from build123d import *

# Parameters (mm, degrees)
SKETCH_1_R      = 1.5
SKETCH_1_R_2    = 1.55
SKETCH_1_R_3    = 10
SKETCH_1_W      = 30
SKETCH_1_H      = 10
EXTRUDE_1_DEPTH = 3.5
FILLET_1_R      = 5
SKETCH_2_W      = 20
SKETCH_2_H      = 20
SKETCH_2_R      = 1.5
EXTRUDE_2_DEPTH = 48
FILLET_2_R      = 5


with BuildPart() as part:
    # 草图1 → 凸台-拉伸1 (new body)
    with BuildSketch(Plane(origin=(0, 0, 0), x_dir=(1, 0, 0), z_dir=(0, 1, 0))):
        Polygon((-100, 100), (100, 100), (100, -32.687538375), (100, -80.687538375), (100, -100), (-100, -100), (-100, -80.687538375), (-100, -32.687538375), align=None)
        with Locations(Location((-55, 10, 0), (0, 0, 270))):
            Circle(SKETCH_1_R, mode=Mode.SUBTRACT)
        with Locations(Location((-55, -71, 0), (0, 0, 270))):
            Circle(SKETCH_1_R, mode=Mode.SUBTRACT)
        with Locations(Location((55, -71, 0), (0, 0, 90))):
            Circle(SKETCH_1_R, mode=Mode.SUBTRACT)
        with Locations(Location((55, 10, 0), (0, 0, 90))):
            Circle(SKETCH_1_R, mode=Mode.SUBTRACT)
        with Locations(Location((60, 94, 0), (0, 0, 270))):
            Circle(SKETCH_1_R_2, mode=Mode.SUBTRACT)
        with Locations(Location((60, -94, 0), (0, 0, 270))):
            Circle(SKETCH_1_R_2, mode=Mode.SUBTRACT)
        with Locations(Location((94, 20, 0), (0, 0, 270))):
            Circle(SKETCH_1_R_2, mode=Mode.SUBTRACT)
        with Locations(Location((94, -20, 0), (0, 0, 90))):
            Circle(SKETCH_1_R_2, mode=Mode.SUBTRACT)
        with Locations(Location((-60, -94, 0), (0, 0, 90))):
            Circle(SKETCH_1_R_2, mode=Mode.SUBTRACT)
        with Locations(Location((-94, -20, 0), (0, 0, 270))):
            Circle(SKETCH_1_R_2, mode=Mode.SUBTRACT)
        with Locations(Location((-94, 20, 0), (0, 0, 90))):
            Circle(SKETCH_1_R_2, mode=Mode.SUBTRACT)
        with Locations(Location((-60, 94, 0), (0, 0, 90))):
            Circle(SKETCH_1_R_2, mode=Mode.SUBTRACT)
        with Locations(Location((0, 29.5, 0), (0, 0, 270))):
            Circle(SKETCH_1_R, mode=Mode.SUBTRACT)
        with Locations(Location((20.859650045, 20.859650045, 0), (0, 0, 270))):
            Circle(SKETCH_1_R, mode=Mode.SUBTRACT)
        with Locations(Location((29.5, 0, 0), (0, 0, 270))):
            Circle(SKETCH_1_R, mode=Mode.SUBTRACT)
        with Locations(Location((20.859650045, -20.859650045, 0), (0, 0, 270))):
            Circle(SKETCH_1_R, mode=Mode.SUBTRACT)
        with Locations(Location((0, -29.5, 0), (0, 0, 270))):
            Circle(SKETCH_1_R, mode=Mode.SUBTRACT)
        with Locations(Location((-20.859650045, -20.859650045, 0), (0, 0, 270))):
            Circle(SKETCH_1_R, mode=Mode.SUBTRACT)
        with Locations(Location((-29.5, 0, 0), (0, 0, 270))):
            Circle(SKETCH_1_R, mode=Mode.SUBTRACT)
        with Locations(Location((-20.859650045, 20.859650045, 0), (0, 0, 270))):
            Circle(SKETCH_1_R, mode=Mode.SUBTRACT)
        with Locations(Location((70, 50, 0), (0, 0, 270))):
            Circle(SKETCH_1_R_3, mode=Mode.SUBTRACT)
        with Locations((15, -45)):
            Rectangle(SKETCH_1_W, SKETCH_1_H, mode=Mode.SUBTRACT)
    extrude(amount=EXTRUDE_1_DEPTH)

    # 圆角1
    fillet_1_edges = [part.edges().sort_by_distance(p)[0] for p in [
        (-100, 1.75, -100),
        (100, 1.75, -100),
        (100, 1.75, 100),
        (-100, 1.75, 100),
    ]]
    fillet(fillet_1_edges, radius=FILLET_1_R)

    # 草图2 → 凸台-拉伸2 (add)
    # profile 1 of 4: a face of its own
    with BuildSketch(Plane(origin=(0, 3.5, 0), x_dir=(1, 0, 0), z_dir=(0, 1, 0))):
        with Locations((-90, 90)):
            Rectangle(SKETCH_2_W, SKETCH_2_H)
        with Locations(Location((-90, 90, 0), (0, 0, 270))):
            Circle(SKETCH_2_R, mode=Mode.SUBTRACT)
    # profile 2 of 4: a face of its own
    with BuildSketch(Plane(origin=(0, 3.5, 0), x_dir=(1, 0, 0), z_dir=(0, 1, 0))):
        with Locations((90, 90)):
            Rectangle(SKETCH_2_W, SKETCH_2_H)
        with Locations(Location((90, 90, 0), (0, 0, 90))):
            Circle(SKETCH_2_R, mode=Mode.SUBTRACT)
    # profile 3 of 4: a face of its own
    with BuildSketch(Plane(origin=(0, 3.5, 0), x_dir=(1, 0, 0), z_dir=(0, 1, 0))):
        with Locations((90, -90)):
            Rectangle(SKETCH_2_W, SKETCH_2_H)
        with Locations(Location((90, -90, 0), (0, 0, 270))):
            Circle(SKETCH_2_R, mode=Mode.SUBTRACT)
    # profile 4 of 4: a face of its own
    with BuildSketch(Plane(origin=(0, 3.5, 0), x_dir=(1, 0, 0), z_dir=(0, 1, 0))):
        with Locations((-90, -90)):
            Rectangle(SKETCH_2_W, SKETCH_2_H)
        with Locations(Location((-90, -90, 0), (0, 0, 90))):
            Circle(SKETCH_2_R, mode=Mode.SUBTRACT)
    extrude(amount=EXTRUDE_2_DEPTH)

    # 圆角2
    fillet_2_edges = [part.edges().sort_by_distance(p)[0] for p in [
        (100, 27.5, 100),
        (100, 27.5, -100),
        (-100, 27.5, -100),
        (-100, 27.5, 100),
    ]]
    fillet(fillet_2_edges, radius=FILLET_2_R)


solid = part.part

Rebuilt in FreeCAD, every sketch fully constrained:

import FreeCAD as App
import Part
import Sketcher
from FreeCAD import Vector
Q = App.Units.Quantity


def edges_at(feature, points):
    """Names of the edges that pass closest to the given points."""
    edges = feature.Shape.Edges
    near = lambda p: min(range(len(edges)), key=lambda i: edges[i].distToShape(Part.Vertex(*p))[0])
    return sorted({f"Edge{near(p) + 1}" for p in points})

doc = App.newDocument("Part")
body = doc.addObject("PartDesign::Body", "Body")

# Sketch on XZ plane
sketch1 = body.newObject("Sketcher::SketchObject", "Sketch")
sketch1.AttachmentSupport = (doc.getObject("XZ_Plane"), [""])
sketch1.MapMode = "FlatFace"
sketch1.addGeometry(Part.LineSegment(Vector(100, -100, 0), Vector(-100, -100, 0)), False)
sketch1.addGeometry(Part.LineSegment(Vector(-100, -100, 0), Vector(-100, 100, 0)), False)
sketch1.addGeometry(Part.LineSegment(Vector(-100, 100, 0), Vector(100, 100, 0)), False)
sketch1.addGeometry(Part.LineSegment(Vector(100, 100, 0), Vector(100, -100, 0)), False)
sketch1.addGeometry(Part.Circle(Vector(60, 94, 0), Vector(0, 0, 1), 1.6), False)
sketch1.addGeometry(Part.Circle(Vector(55, 71, 0), Vector(0, 0, 1), 1.5), False)
sketch1.addGeometry(Part.Circle(Vector(94, 20, 0), Vector(0, 0, 1), 1.6), False)
sketch1.addGeometry(Part.LineSegment(Vector(0, 50, 0), Vector(0, 40, 0)), False)
sketch1.addGeometry(Part.LineSegment(Vector(0, 40, 0), Vector(30, 40, 0)), False)
sketch1.addGeometry(Part.LineSegment(Vector(30, 40, 0), Vector(30, 50, 0)), False)
sketch1.addGeometry(Part.LineSegment(Vector(30, 50, 0), Vector(0, 50, 0)), False)
sketch1.addGeometry(Part.Circle(Vector(20.9, 20.9, 0), Vector(0, 0, 1), 1.5), False)
sketch1.addGeometry(Part.Circle(Vector(-60, 94, 0), Vector(0, 0, 1), 1.6), False)
sketch1.addGeometry(Part.Circle(Vector(-55, 71, 0), Vector(0, 0, 1), 1.5), False)
sketch1.addGeometry(Part.Circle(Vector(0, 29.5, 0), Vector(0, 0, 1), 1.5), False)
sketch1.addGeometry(Part.Circle(Vector(-20.9, 20.9, 0), Vector(0, 0, 1), 1.5), False)
sketch1.addGeometry(Part.Circle(Vector(-94, 20, 0), Vector(0, 0, 1), 1.6), False)
sketch1.addGeometry(Part.Circle(Vector(94, -20, 0), Vector(0, 0, 1), 1.6), False)
sketch1.addGeometry(Part.Circle(Vector(55, -10, 0), Vector(0, 0, 1), 1.5), False)
sketch1.addGeometry(Part.Circle(Vector(29.5, 0, 0), Vector(0, 0, 1), 1.5), False)
sketch1.addGeometry(Part.Circle(Vector(20.9, -20.9, 0), Vector(0, 0, 1), 1.5), False)
sketch1.addGeometry(Part.Circle(Vector(70, -50, 0), Vector(0, 0, 1), 10), False)
sketch1.addGeometry(Part.Circle(Vector(60, -94, 0), Vector(0, 0, 1), 1.6), False)
sketch1.addGeometry(Part.Circle(Vector(-20.9, -20.9, 0), Vector(0, 0, 1), 1.5), False)
sketch1.addGeometry(Part.Circle(Vector(-29.5, 0, 0), Vector(0, 0, 1), 1.5), False)
sketch1.addGeometry(Part.Circle(Vector(0, -29.5, 0), Vector(0, 0, 1), 1.5), False)
sketch1.addGeometry(Part.Circle(Vector(-55, -10, 0), Vector(0, 0, 1), 1.5), False)
sketch1.addGeometry(Part.Circle(Vector(-94, -20, 0), Vector(0, 0, 1), 1.6), False)
sketch1.addGeometry(Part.Circle(Vector(-60, -94, 0), Vector(0, 0, 1), 1.6), False)
sketch1.addConstraint(Sketcher.Constraint("Coincident", 0, 2, 1, 1))
sketch1.addConstraint(Sketcher.Constraint("Coincident", 1, 2, 2, 1))
sketch1.addConstraint(Sketcher.Constraint("Coincident", 2, 2, 3, 1))
sketch1.addConstraint(Sketcher.Constraint("Coincident", 3, 2, 0, 1))
sketch1.addConstraint(Sketcher.Constraint("Coincident", 7, 2, 8, 1))
sketch1.addConstraint(Sketcher.Constraint("Coincident", 8, 2, 9, 1))
sketch1.addConstraint(Sketcher.Constraint("Coincident", 9, 2, 10, 1))
sketch1.addConstraint(Sketcher.Constraint("Coincident", 10, 2, 7, 1))
sketch1.addConstraint(Sketcher.Constraint("Horizontal", 0))
sketch1.addConstraint(Sketcher.Constraint("Vertical", 1))
sketch1.addConstraint(Sketcher.Constraint("Horizontal", 2))
sketch1.addConstraint(Sketcher.Constraint("Vertical", 3))
sketch1.addConstraint(Sketcher.Constraint("Vertical", 7))
sketch1.addConstraint(Sketcher.Constraint("Horizontal", 8))
sketch1.addConstraint(Sketcher.Constraint("Vertical", 9))
sketch1.addConstraint(Sketcher.Constraint("Horizontal", 10))
sketch1.addConstraint(Sketcher.Constraint("Equal", 4, 6))
sketch1.addConstraint(Sketcher.Constraint("Equal", 5, 11))
sketch1.addConstraint(Sketcher.Constraint("Equal", 6, 12))
sketch1.addConstraint(Sketcher.Constraint("Equal", 11, 13))
sketch1.addConstraint(Sketcher.Constraint("Equal", 13, 14))
sketch1.addConstraint(Sketcher.Constraint("Equal", 14, 15))
sketch1.addConstraint(Sketcher.Constraint("Equal", 12, 16))
sketch1.addConstraint(Sketcher.Constraint("Equal", 16, 17))
sketch1.addConstraint(Sketcher.Constraint("Equal", 15, 18))
sketch1.addConstraint(Sketcher.Constraint("Equal", 18, 19))
sketch1.addConstraint(Sketcher.Constraint("Equal", 19, 20))
sketch1.addConstraint(Sketcher.Constraint("Equal", 17, 22))
sketch1.addConstraint(Sketcher.Constraint("Equal", 20, 23))
sketch1.addConstraint(Sketcher.Constraint("Equal", 23, 24))
sketch1.addConstraint(Sketcher.Constraint("Equal", 24, 25))
sketch1.addConstraint(Sketcher.Constraint("Equal", 25, 26))
sketch1.addConstraint(Sketcher.Constraint("Equal", 22, 27))
sketch1.addConstraint(Sketcher.Constraint("Equal", 27, 28))
sketch1.addConstraint(Sketcher.Constraint("Symmetric", 16, 3, 17, 3, -1, 1))
sketch1.addConstraint(Sketcher.Constraint("Symmetric", 15, 3, 20, 3, -1, 1))
sketch1.addConstraint(Sketcher.Constraint("Symmetric", 12, 3, 22, 3, -1, 1))
sketch1.addConstraint(Sketcher.Constraint("Symmetric", 11, 3, 23, 3, -1, 1))
sketch1.addConstraint(Sketcher.Constraint("Symmetric", 19, 3, 24, 3, -1, 1))
sketch1.addConstraint(Sketcher.Constraint("Symmetric", 14, 3, 25, 3, -1, 1))
sketch1.addConstraint(Sketcher.Constraint("Symmetric", 6, 3, 27, 3, -1, 1))
sketch1.addConstraint(Sketcher.Constraint("Symmetric", 4, 3, 28, 3, -1, 1))
sketch1.addConstraint(Sketcher.Constraint("Symmetric", 0, 2, 2, 2, -1, 1))
sketch1.addConstraint(Sketcher.Constraint("Symmetric", 4, 3, 12, 3, -2))
sketch1.addConstraint(Sketcher.Constraint("Symmetric", 5, 3, 13, 3, -2))
sketch1.addConstraint(Sketcher.Constraint("Symmetric", 11, 3, 15, 3, -2))
sketch1.addConstraint(Sketcher.Constraint("Symmetric", 6, 3, 16, 3, -2))
sketch1.addConstraint(Sketcher.Constraint("Symmetric", 18, 3, 26, 3, -2))
sketch1.addConstraint(Sketcher.Constraint("PointOnObject", 14, 3, -2))
sketch1.addConstraint(Sketcher.Constraint("PointOnObject", 19, 3, -1))
sketch1.addConstraint(Sketcher.Constraint("PointOnObject", 7, 2, -2))
sketch1.addConstraint(Sketcher.Constraint("Vertical", 5, 3, 18, 3))
sketch1.addConstraint(Sketcher.Constraint("Equal", 2, 1))
sketch1.addConstraint(Sketcher.Constraint("Diameter", 5, Q("3 mm")))
sketch1.addConstraint(Sketcher.Constraint("Diameter", 21, Q("20 mm")))
sketch1.addConstraint(Sketcher.Constraint("Diameter", 4, Q("3.1 mm")))
sketch1.addConstraint(Sketcher.Constraint("DistanceX", 0, 2, 0, 1, Q("200 mm")))
sketch1.addConstraint(Sketcher.Constraint("DistanceX", 8, 1, 8, 2, Q("30 mm")))
sketch1.addConstraint(Sketcher.Constraint("DistanceY", 7, 2, 7, 1, Q("10 mm")))
sketch1.addConstraint(Sketcher.Constraint("DistanceX", -1, 1, 4, 3, Q("60 mm")))
sketch1.addConstraint(Sketcher.Constraint("DistanceY", -1, 1, 4, 3, Q("94 mm")))
sketch1.addConstraint(Sketcher.Constraint("DistanceX", -1, 1, 5, 3, Q("55 mm")))
sketch1.addConstraint(Sketcher.Constraint("DistanceY", -1, 1, 5, 3, Q("71 mm")))
sketch1.addConstraint(Sketcher.Constraint("DistanceX", -1, 1, 6, 3, Q("94 mm")))
sketch1.addConstraint(Sketcher.Constraint("DistanceY", -1, 1, 6, 3, Q("20 mm")))
sketch1.addConstraint(Sketcher.Constraint("DistanceY", 18, 3, -1, 1, Q("10 mm")))
sketch1.addConstraint(Sketcher.Constraint("DistanceX", -1, 1, 21, 3, Q("70 mm")))
sketch1.addConstraint(Sketcher.Constraint("DistanceY", 21, 3, -1, 1, Q("50 mm")))
sketch1.addConstraint(Sketcher.Constraint("DistanceY", -1, 1, 7, 2, Q("40 mm")))
sketch1.addConstraint(Sketcher.Constraint("DistanceY", -1, 1, 14, 3, Q("29.5 mm")))
sketch1.addConstraint(Sketcher.Constraint("DistanceX", -1, 1, 19, 3, Q("29.5 mm")))
sketch1.addConstraint(Sketcher.Constraint("DistanceX", 15, 3, 11, 3, Q("41.7193 mm")))
sketch1.addConstraint(Sketcher.Constraint("DistanceY", 20, 3, 11, 3, Q("41.7193 mm")))
pad1 = body.newObject("PartDesign::Pad", "Pad")
pad1.Profile = sketch1
pad1.Length = 3.5
pad1.Reversed = True
doc.recompute()

fillet = body.newObject("PartDesign::Fillet", "Fillet")
fillet.Base = (pad1, edges_at(pad1, [
    (-100, 1.75, -100),
    (100, 1.75, -100),
    (100, 1.75, 100),
    (-100, 1.75, 100),
]))
fillet.Radius = 5

# Sketch on XZ plane
sketch2 = body.newObject("Sketcher::SketchObject", "Sketch001")
sketch2.AttachmentSupport = (doc.getObject("XZ_Plane"), [""])
sketch2.MapMode = "FlatFace"
sketch2.AttachmentOffset = App.Placement(Vector(0, 0, -3.5), App.Rotation())
sketch2.addGeometry(Part.LineSegment(Vector(-100, -100, 0), Vector(-100, -80, 0)), False)
sketch2.addGeometry(Part.LineSegment(Vector(-100, -80, 0), Vector(-80, -80, 0)), False)
sketch2.addGeometry(Part.LineSegment(Vector(-80, -80, 0), Vector(-80, -100, 0)), False)
sketch2.addGeometry(Part.LineSegment(Vector(-80, -100, 0), Vector(-100, -100, 0)), False)
sketch2.addGeometry(Part.Circle(Vector(-90, -90, 0), Vector(0, 0, 1), 1.5), False)
sketch2.addGeometry(Part.LineSegment(Vector(80, -100, 0), Vector(80, -80, 0)), False)
sketch2.addGeometry(Part.LineSegment(Vector(80, -80, 0), Vector(100, -80, 0)), False)
sketch2.addGeometry(Part.LineSegment(Vector(100, -80, 0), Vector(100, -100, 0)), False)
sketch2.addGeometry(Part.LineSegment(Vector(100, -100, 0), Vector(80, -100, 0)), False)
sketch2.addGeometry(Part.Circle(Vector(90, -90, 0), Vector(0, 0, 1), 1.5), False)
sketch2.addGeometry(Part.LineSegment(Vector(80, 80, 0), Vector(80, 100, 0)), False)
sketch2.addGeometry(Part.LineSegment(Vector(80, 100, 0), Vector(100, 100, 0)), False)
sketch2.addGeometry(Part.LineSegment(Vector(100, 100, 0), Vector(100, 80, 0)), False)
sketch2.addGeometry(Part.LineSegment(Vector(100, 80, 0), Vector(80, 80, 0)), False)
sketch2.addGeometry(Part.Circle(Vector(90, 90, 0), Vector(0, 0, 1), 1.5), False)
sketch2.addGeometry(Part.LineSegment(Vector(-100, 80, 0), Vector(-100, 100, 0)), False)
sketch2.addGeometry(Part.LineSegment(Vector(-100, 100, 0), Vector(-80, 100, 0)), False)
sketch2.addGeometry(Part.LineSegment(Vector(-80, 100, 0), Vector(-80, 80, 0)), False)
sketch2.addGeometry(Part.LineSegment(Vector(-80, 80, 0), Vector(-100, 80, 0)), False)
sketch2.addGeometry(Part.Circle(Vector(-90, 90, 0), Vector(0, 0, 1), 1.5), False)
sketch2.addConstraint(Sketcher.Constraint("Coincident", 0, 2, 1, 1))
sketch2.addConstraint(Sketcher.Constraint("Coincident", 1, 2, 2, 1))
sketch2.addConstraint(Sketcher.Constraint("Coincident", 2, 2, 3, 1))
sketch2.addConstraint(Sketcher.Constraint("Coincident", 3, 2, 0, 1))
sketch2.addConstraint(Sketcher.Constraint("Coincident", 5, 2, 6, 1))
sketch2.addConstraint(Sketcher.Constraint("Coincident", 6, 2, 7, 1))
sketch2.addConstraint(Sketcher.Constraint("Coincident", 7, 2, 8, 1))
sketch2.addConstraint(Sketcher.Constraint("Coincident", 8, 2, 5, 1))
sketch2.addConstraint(Sketcher.Constraint("Coincident", 10, 2, 11, 1))
sketch2.addConstraint(Sketcher.Constraint("Coincident", 11, 2, 12, 1))
sketch2.addConstraint(Sketcher.Constraint("Coincident", 12, 2, 13, 1))
sketch2.addConstraint(Sketcher.Constraint("Coincident", 13, 2, 10, 1))
sketch2.addConstraint(Sketcher.Constraint("Coincident", 15, 2, 16, 1))
sketch2.addConstraint(Sketcher.Constraint("Coincident", 16, 2, 17, 1))
sketch2.addConstraint(Sketcher.Constraint("Coincident", 17, 2, 18, 1))
sketch2.addConstraint(Sketcher.Constraint("Coincident", 18, 2, 15, 1))
sketch2.addConstraint(Sketcher.Constraint("Vertical", 0))
sketch2.addConstraint(Sketcher.Constraint("Horizontal", 1))
sketch2.addConstraint(Sketcher.Constraint("Vertical", 2))
sketch2.addConstraint(Sketcher.Constraint("Horizontal", 3))
sketch2.addConstraint(Sketcher.Constraint("Vertical", 5))
sketch2.addConstraint(Sketcher.Constraint("Horizontal", 6))
sketch2.addConstraint(Sketcher.Constraint("Vertical", 7))
sketch2.addConstraint(Sketcher.Constraint("Horizontal", 8))
sketch2.addConstraint(Sketcher.Constraint("Vertical", 10))
sketch2.addConstraint(Sketcher.Constraint("Horizontal", 11))
sketch2.addConstraint(Sketcher.Constraint("Vertical", 12))
sketch2.addConstraint(Sketcher.Constraint("Horizontal", 13))
sketch2.addConstraint(Sketcher.Constraint("Vertical", 15))
sketch2.addConstraint(Sketcher.Constraint("Horizontal", 16))
sketch2.addConstraint(Sketcher.Constraint("Vertical", 17))
sketch2.addConstraint(Sketcher.Constraint("Horizontal", 18))
sketch2.addConstraint(Sketcher.Constraint("Equal", 4, 9))
sketch2.addConstraint(Sketcher.Constraint("Equal", 9, 14))
sketch2.addConstraint(Sketcher.Constraint("Equal", 14, 19))
sketch2.addConstraint(Sketcher.Constraint("Symmetric", 4, 3, 14, 3, -1, 1))
sketch2.addConstraint(Sketcher.Constraint("Symmetric", 9, 3, 19, 3, -1, 1))
sketch2.addConstraint(Sketcher.Constraint("Symmetric", 2, 2, 10, 2, -1, 1))
sketch2.addConstraint(Sketcher.Constraint("Symmetric", 0, 2, 12, 2, -1, 1))
sketch2.addConstraint(Sketcher.Constraint("Symmetric", 7, 2, 15, 2, -1, 1))
sketch2.addConstraint(Sketcher.Constraint("Symmetric", 5, 2, 17, 2, -1, 1))
sketch2.addConstraint(Sketcher.Constraint("Symmetric", 4, 3, 9, 3, -2))
sketch2.addConstraint(Sketcher.Constraint("Symmetric", 1, 2, 5, 2, -2))
sketch2.addConstraint(Sketcher.Constraint("Symmetric", 3, 2, 7, 2, -2))
sketch2.addConstraint(Sketcher.Constraint("Equal", 18, 0))
sketch2.addConstraint(Sketcher.Constraint("Diameter", 4, Q("3 mm")))
sketch2.addConstraint(Sketcher.Constraint("DistanceX", 1, 1, 1, 2, Q("20 mm")))
sketch2.addConstraint(Sketcher.Constraint("DistanceX", 4, 3, -1, 1, Q("90 mm")))
sketch2.addConstraint(Sketcher.Constraint("DistanceY", 4, 3, -1, 1, Q("90 mm")))
sketch2.addConstraint(Sketcher.Constraint("DistanceX", 0, 2, -1, 1, Q("100 mm")))
sketch2.addConstraint(Sketcher.Constraint("DistanceY", 0, 2, -1, 1, Q("80 mm")))
pad2 = body.newObject("PartDesign::Pad", "Pad001")
pad2.Profile = sketch2
pad2.Length = 48
pad2.Reversed = True
doc.recompute()

fillet2 = body.newObject("PartDesign::Fillet", "Fillet001")
fillet2.Base = (pad2, edges_at(pad2, [
    (100, 27.5, 100),
    (100, 27.5, -100),
    (-100, 27.5, -100),
    (-100, 27.5, 100),
]))
fillet2.Radius = 5

doc.recompute()
